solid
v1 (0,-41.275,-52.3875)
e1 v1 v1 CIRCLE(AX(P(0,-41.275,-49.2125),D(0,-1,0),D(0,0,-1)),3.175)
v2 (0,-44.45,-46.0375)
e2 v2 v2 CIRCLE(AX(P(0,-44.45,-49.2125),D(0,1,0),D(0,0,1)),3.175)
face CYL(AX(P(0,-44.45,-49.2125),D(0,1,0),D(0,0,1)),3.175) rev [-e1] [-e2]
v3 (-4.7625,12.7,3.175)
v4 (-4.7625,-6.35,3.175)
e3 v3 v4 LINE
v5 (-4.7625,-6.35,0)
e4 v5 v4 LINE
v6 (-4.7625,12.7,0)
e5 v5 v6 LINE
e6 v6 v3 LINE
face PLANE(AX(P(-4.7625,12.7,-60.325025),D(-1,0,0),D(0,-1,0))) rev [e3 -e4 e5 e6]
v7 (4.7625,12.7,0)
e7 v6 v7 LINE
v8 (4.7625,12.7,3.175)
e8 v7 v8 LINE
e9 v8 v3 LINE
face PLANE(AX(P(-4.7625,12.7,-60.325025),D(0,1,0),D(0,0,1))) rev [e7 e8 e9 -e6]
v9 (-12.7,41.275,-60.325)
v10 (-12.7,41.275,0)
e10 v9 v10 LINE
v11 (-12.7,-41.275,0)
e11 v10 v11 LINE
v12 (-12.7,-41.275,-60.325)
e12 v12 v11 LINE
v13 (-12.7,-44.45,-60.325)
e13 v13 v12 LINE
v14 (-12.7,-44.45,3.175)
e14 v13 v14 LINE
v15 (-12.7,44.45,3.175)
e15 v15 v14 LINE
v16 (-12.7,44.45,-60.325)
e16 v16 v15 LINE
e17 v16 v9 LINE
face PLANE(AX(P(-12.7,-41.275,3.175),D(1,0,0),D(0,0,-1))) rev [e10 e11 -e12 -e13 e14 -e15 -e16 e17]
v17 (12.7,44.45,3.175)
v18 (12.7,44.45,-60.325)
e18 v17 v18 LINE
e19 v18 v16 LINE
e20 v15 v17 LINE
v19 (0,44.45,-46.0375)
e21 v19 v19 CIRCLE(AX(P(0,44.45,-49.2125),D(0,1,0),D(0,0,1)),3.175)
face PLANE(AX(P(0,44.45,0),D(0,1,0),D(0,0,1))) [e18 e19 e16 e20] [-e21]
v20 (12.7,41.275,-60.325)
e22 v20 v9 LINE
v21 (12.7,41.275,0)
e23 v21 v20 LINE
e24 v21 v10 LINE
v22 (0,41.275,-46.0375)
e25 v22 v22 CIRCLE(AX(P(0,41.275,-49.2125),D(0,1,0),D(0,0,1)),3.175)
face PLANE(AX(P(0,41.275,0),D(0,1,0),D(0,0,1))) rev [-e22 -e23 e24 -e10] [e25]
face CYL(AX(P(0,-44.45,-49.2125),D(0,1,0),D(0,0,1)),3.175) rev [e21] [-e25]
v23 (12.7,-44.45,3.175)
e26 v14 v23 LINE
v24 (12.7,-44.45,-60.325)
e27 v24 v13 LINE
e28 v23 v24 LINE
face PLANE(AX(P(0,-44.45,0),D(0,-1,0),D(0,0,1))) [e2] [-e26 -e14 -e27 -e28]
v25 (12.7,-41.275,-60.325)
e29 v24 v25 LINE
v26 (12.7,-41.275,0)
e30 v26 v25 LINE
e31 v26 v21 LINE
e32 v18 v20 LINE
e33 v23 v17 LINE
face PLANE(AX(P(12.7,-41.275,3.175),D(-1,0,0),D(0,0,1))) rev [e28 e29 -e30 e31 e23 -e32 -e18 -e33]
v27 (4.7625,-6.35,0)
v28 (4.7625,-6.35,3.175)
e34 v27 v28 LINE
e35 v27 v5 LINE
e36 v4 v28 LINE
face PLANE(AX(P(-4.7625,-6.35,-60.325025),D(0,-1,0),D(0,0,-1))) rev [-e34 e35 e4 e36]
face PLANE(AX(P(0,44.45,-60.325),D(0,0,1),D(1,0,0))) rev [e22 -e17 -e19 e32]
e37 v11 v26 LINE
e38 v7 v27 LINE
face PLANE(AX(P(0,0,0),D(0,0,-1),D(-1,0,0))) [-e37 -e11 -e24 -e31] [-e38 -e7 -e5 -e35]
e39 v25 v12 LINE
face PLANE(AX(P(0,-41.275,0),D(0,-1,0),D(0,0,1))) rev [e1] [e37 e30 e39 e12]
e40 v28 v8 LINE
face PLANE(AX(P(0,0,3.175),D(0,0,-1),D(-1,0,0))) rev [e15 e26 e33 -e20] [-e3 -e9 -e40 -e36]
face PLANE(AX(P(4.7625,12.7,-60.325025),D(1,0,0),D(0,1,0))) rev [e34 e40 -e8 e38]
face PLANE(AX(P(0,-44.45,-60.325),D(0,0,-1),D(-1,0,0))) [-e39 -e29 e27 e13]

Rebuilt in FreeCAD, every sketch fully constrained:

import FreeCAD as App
import Part
import Sketcher
Q = App.Units.Quantity

doc = App.newDocument("Part")
body = doc.addObject("PartDesign::Body", "Body")

sketch1 = body.newObject("Sketcher::SketchObject", "Sketch")
sketch1.AttachmentSupport = (doc.getObject("XY_Plane"), [""])
sketch1.MapMode = "FlatFace"
sketch1.addGeometry([
    Part.LineSegment(App.Vector(-13, 41, 0), App.Vector(-13, -41, 0)),
    Part.LineSegment(App.Vector(-13, -41, 0), App.Vector(13, -41, 0)),
    Part.LineSegment(App.Vector(13, -41, 0), App.Vector(13, 41, 0)),
    Part.LineSegment(App.Vector(13, 41, 0), App.Vector(-13, 41, 0)),
], False)
sketch1.addConstraint([
    Sketcher.Constraint("Coincident", 0, 2, 1, 1),
    Sketcher.Constraint("Coincident", 1, 2, 2, 1),
    Sketcher.Constraint("Coincident", 2, 2, 3, 1),
    Sketcher.Constraint("Coincident", 3, 2, 0, 1),
    Sketcher.Constraint("Vertical", 0),
    Sketcher.Constraint("Horizontal", 1),
    Sketcher.Constraint("Vertical", 2),
    Sketcher.Constraint("Horizontal", 3),
    Sketcher.Constraint("Symmetric", 0, 2, 2, 2, -1, 1),
    Sketcher.Constraint("DistanceX", 1, 1, 1, 2, Q("1 in")),
    Sketcher.Constraint("DistanceY", 0, 2, 0, 1, Q("3.25 in")),
])
pad1 = body.newObject("PartDesign::Pad", "Pad")
pad1.Profile = sketch1
pad1.Length = Q("0.125 in")

sketch2 = body.newObject("Sketcher::SketchObject", "Sketch001")
sketch2.AttachmentSupport = (doc.getObject("XZ_Plane"), [""])
sketch2.MapMode = "FlatFace"
sketch2.AttachmentOffset = App.Placement(App.Vector(0, 0, -1.625 * 25.4), App.Rotation())
sketch2.addGeometry([
    Part.LineSegment(App.Vector(-13, 3, 0), App.Vector(13, 3, 0)),
    Part.LineSegment(App.Vector(13, 3, 0), App.Vector(13, -60, 0)),
    Part.LineSegment(App.Vector(13, -60, 0), App.Vector(-13, -60, 0)),
    Part.LineSegment(App.Vector(-13, -60, 0), App.Vector(-13, 3, 0)),
], False)
sketch2.addConstraint([
    Sketcher.Constraint("Coincident", 0, 2, 1, 1),
    Sketcher.Constraint("Coincident", 1, 2, 2, 1),
    Sketcher.Constraint("Coincident", 2, 2, 3, 1),
    Sketcher.Constraint("Coincident", 3, 2, 0, 1),
    Sketcher.Constraint("Horizontal", 0),
    Sketcher.Constraint("Vertical", 1),
    Sketcher.Constraint("Horizontal", 2),
    Sketcher.Constraint("Vertical", 3),
    Sketcher.Constraint("DistanceX", 0, 1, 0, 2, Q("1 in")),
    Sketcher.Constraint("DistanceY", 1, 2, 1, 1, Q("2.5 in")),
    Sketcher.Constraint("DistanceX", -1, 1, 0, 2, Q("0.5 in")),
    Sketcher.Constraint("DistanceY", -1, 1, 0, 2, Q("0.125 in")),
])
pad2 = body.newObject("PartDesign::Pad", "Pad001")
pad2.Profile = sketch2
pad2.Length = Q("0.125 in")
pad2.Reversed = True

sketch3 = body.newObject("Sketcher::SketchObject", "Sketch002")
sketch3.AttachmentSupport = (doc.getObject("XY_Plane"), [""])
sketch3.MapMode = "FlatFace"
sketch3.AttachmentOffset = App.Placement(App.Vector(0, 0, 0.125 * 25.4), App.Rotation())
sketch3.addGeometry([
    Part.LineSegment(App.Vector(-5, 13, 0), App.Vector(-5, -6, 0)),
    Part.LineSegment(App.Vector(-5, -6, 0), App.Vector(5, -6, 0)),
    Part.LineSegment(App.Vector(5, -6, 0), App.Vector(5, 13, 0)),
    Part.LineSegment(App.Vector(5, 13, 0), App.Vector(-5, 13, 0)),
], False)
sketch3.addConstraint([
    Sketcher.Constraint("Coincident", 0, 2, 1, 1),
    Sketcher.Constraint("Coincident", 1, 2, 2, 1),
    Sketcher.Constraint("Coincident", 2, 2, 3, 1),
    Sketcher.Constraint("Coincident", 3, 2, 0, 1),
    Sketcher.Constraint("Vertical", 0),
    Sketcher.Constraint("Horizontal", 1),
    Sketcher.Constraint("Vertical", 2),
    Sketcher.Constraint("Horizontal", 3),
    Sketcher.Constraint("DistanceY", 0, 2, 0, 1, Q("0.75 in")),
    Sketcher.Constraint("DistanceY", -1, 1, 2, 2, Q("0.5 in")),
    Sketcher.Constraint("DistanceX", 1, 1, 1, 2, Q("0.375 in")),
    Sketcher.Constraint("DistanceX", 0, 2, -1, 1, Q("0.1875 in")),
])
pocket1 = body.newObject("PartDesign::Pocket", "Pocket")
pocket1.Profile = sketch3
pocket1.Type = "ThroughAll"
doc.recompute()

mirrored = body.newObject("PartDesign::Mirrored", "Mirrored")
mirrored.Originals = [pad2]
mirrored.MirrorPlane = (doc.getObject("XZ_Plane"), [""])
body.Tip = mirrored

sketch4 = body.newObject("Sketcher::SketchObject", "Sketch003")
sketch4.AttachmentSupport = (doc.getObject("XZ_Plane"), [""])
sketch4.MapMode = "FlatFace"
sketch4.AttachmentOffset = App.Placement(App.Vector(0, 0, -1.75 * 25.4), App.Rotation())
sketch4.addGeometry(Part.Circle(App.Vector(0, -49.2, 0), App.Vector(0, 0, 1), 3.2), False)
sketch4.addConstraint([
    Sketcher.Constraint("PointOnObject", 0, 3, -2),
    Sketcher.Constraint("Diameter", 0, Q("0.25 in")),
    Sketcher.Constraint("DistanceY", 0, 3, -1, 1, Q("1.9375 in")),
])
pocket2 = body.newObject("PartDesign::Pocket", "Pocket001")
pocket2.Profile = sketch4
pocket2.Type = "ThroughAll"
pocket2.Reversed = True

doc.recompute()
